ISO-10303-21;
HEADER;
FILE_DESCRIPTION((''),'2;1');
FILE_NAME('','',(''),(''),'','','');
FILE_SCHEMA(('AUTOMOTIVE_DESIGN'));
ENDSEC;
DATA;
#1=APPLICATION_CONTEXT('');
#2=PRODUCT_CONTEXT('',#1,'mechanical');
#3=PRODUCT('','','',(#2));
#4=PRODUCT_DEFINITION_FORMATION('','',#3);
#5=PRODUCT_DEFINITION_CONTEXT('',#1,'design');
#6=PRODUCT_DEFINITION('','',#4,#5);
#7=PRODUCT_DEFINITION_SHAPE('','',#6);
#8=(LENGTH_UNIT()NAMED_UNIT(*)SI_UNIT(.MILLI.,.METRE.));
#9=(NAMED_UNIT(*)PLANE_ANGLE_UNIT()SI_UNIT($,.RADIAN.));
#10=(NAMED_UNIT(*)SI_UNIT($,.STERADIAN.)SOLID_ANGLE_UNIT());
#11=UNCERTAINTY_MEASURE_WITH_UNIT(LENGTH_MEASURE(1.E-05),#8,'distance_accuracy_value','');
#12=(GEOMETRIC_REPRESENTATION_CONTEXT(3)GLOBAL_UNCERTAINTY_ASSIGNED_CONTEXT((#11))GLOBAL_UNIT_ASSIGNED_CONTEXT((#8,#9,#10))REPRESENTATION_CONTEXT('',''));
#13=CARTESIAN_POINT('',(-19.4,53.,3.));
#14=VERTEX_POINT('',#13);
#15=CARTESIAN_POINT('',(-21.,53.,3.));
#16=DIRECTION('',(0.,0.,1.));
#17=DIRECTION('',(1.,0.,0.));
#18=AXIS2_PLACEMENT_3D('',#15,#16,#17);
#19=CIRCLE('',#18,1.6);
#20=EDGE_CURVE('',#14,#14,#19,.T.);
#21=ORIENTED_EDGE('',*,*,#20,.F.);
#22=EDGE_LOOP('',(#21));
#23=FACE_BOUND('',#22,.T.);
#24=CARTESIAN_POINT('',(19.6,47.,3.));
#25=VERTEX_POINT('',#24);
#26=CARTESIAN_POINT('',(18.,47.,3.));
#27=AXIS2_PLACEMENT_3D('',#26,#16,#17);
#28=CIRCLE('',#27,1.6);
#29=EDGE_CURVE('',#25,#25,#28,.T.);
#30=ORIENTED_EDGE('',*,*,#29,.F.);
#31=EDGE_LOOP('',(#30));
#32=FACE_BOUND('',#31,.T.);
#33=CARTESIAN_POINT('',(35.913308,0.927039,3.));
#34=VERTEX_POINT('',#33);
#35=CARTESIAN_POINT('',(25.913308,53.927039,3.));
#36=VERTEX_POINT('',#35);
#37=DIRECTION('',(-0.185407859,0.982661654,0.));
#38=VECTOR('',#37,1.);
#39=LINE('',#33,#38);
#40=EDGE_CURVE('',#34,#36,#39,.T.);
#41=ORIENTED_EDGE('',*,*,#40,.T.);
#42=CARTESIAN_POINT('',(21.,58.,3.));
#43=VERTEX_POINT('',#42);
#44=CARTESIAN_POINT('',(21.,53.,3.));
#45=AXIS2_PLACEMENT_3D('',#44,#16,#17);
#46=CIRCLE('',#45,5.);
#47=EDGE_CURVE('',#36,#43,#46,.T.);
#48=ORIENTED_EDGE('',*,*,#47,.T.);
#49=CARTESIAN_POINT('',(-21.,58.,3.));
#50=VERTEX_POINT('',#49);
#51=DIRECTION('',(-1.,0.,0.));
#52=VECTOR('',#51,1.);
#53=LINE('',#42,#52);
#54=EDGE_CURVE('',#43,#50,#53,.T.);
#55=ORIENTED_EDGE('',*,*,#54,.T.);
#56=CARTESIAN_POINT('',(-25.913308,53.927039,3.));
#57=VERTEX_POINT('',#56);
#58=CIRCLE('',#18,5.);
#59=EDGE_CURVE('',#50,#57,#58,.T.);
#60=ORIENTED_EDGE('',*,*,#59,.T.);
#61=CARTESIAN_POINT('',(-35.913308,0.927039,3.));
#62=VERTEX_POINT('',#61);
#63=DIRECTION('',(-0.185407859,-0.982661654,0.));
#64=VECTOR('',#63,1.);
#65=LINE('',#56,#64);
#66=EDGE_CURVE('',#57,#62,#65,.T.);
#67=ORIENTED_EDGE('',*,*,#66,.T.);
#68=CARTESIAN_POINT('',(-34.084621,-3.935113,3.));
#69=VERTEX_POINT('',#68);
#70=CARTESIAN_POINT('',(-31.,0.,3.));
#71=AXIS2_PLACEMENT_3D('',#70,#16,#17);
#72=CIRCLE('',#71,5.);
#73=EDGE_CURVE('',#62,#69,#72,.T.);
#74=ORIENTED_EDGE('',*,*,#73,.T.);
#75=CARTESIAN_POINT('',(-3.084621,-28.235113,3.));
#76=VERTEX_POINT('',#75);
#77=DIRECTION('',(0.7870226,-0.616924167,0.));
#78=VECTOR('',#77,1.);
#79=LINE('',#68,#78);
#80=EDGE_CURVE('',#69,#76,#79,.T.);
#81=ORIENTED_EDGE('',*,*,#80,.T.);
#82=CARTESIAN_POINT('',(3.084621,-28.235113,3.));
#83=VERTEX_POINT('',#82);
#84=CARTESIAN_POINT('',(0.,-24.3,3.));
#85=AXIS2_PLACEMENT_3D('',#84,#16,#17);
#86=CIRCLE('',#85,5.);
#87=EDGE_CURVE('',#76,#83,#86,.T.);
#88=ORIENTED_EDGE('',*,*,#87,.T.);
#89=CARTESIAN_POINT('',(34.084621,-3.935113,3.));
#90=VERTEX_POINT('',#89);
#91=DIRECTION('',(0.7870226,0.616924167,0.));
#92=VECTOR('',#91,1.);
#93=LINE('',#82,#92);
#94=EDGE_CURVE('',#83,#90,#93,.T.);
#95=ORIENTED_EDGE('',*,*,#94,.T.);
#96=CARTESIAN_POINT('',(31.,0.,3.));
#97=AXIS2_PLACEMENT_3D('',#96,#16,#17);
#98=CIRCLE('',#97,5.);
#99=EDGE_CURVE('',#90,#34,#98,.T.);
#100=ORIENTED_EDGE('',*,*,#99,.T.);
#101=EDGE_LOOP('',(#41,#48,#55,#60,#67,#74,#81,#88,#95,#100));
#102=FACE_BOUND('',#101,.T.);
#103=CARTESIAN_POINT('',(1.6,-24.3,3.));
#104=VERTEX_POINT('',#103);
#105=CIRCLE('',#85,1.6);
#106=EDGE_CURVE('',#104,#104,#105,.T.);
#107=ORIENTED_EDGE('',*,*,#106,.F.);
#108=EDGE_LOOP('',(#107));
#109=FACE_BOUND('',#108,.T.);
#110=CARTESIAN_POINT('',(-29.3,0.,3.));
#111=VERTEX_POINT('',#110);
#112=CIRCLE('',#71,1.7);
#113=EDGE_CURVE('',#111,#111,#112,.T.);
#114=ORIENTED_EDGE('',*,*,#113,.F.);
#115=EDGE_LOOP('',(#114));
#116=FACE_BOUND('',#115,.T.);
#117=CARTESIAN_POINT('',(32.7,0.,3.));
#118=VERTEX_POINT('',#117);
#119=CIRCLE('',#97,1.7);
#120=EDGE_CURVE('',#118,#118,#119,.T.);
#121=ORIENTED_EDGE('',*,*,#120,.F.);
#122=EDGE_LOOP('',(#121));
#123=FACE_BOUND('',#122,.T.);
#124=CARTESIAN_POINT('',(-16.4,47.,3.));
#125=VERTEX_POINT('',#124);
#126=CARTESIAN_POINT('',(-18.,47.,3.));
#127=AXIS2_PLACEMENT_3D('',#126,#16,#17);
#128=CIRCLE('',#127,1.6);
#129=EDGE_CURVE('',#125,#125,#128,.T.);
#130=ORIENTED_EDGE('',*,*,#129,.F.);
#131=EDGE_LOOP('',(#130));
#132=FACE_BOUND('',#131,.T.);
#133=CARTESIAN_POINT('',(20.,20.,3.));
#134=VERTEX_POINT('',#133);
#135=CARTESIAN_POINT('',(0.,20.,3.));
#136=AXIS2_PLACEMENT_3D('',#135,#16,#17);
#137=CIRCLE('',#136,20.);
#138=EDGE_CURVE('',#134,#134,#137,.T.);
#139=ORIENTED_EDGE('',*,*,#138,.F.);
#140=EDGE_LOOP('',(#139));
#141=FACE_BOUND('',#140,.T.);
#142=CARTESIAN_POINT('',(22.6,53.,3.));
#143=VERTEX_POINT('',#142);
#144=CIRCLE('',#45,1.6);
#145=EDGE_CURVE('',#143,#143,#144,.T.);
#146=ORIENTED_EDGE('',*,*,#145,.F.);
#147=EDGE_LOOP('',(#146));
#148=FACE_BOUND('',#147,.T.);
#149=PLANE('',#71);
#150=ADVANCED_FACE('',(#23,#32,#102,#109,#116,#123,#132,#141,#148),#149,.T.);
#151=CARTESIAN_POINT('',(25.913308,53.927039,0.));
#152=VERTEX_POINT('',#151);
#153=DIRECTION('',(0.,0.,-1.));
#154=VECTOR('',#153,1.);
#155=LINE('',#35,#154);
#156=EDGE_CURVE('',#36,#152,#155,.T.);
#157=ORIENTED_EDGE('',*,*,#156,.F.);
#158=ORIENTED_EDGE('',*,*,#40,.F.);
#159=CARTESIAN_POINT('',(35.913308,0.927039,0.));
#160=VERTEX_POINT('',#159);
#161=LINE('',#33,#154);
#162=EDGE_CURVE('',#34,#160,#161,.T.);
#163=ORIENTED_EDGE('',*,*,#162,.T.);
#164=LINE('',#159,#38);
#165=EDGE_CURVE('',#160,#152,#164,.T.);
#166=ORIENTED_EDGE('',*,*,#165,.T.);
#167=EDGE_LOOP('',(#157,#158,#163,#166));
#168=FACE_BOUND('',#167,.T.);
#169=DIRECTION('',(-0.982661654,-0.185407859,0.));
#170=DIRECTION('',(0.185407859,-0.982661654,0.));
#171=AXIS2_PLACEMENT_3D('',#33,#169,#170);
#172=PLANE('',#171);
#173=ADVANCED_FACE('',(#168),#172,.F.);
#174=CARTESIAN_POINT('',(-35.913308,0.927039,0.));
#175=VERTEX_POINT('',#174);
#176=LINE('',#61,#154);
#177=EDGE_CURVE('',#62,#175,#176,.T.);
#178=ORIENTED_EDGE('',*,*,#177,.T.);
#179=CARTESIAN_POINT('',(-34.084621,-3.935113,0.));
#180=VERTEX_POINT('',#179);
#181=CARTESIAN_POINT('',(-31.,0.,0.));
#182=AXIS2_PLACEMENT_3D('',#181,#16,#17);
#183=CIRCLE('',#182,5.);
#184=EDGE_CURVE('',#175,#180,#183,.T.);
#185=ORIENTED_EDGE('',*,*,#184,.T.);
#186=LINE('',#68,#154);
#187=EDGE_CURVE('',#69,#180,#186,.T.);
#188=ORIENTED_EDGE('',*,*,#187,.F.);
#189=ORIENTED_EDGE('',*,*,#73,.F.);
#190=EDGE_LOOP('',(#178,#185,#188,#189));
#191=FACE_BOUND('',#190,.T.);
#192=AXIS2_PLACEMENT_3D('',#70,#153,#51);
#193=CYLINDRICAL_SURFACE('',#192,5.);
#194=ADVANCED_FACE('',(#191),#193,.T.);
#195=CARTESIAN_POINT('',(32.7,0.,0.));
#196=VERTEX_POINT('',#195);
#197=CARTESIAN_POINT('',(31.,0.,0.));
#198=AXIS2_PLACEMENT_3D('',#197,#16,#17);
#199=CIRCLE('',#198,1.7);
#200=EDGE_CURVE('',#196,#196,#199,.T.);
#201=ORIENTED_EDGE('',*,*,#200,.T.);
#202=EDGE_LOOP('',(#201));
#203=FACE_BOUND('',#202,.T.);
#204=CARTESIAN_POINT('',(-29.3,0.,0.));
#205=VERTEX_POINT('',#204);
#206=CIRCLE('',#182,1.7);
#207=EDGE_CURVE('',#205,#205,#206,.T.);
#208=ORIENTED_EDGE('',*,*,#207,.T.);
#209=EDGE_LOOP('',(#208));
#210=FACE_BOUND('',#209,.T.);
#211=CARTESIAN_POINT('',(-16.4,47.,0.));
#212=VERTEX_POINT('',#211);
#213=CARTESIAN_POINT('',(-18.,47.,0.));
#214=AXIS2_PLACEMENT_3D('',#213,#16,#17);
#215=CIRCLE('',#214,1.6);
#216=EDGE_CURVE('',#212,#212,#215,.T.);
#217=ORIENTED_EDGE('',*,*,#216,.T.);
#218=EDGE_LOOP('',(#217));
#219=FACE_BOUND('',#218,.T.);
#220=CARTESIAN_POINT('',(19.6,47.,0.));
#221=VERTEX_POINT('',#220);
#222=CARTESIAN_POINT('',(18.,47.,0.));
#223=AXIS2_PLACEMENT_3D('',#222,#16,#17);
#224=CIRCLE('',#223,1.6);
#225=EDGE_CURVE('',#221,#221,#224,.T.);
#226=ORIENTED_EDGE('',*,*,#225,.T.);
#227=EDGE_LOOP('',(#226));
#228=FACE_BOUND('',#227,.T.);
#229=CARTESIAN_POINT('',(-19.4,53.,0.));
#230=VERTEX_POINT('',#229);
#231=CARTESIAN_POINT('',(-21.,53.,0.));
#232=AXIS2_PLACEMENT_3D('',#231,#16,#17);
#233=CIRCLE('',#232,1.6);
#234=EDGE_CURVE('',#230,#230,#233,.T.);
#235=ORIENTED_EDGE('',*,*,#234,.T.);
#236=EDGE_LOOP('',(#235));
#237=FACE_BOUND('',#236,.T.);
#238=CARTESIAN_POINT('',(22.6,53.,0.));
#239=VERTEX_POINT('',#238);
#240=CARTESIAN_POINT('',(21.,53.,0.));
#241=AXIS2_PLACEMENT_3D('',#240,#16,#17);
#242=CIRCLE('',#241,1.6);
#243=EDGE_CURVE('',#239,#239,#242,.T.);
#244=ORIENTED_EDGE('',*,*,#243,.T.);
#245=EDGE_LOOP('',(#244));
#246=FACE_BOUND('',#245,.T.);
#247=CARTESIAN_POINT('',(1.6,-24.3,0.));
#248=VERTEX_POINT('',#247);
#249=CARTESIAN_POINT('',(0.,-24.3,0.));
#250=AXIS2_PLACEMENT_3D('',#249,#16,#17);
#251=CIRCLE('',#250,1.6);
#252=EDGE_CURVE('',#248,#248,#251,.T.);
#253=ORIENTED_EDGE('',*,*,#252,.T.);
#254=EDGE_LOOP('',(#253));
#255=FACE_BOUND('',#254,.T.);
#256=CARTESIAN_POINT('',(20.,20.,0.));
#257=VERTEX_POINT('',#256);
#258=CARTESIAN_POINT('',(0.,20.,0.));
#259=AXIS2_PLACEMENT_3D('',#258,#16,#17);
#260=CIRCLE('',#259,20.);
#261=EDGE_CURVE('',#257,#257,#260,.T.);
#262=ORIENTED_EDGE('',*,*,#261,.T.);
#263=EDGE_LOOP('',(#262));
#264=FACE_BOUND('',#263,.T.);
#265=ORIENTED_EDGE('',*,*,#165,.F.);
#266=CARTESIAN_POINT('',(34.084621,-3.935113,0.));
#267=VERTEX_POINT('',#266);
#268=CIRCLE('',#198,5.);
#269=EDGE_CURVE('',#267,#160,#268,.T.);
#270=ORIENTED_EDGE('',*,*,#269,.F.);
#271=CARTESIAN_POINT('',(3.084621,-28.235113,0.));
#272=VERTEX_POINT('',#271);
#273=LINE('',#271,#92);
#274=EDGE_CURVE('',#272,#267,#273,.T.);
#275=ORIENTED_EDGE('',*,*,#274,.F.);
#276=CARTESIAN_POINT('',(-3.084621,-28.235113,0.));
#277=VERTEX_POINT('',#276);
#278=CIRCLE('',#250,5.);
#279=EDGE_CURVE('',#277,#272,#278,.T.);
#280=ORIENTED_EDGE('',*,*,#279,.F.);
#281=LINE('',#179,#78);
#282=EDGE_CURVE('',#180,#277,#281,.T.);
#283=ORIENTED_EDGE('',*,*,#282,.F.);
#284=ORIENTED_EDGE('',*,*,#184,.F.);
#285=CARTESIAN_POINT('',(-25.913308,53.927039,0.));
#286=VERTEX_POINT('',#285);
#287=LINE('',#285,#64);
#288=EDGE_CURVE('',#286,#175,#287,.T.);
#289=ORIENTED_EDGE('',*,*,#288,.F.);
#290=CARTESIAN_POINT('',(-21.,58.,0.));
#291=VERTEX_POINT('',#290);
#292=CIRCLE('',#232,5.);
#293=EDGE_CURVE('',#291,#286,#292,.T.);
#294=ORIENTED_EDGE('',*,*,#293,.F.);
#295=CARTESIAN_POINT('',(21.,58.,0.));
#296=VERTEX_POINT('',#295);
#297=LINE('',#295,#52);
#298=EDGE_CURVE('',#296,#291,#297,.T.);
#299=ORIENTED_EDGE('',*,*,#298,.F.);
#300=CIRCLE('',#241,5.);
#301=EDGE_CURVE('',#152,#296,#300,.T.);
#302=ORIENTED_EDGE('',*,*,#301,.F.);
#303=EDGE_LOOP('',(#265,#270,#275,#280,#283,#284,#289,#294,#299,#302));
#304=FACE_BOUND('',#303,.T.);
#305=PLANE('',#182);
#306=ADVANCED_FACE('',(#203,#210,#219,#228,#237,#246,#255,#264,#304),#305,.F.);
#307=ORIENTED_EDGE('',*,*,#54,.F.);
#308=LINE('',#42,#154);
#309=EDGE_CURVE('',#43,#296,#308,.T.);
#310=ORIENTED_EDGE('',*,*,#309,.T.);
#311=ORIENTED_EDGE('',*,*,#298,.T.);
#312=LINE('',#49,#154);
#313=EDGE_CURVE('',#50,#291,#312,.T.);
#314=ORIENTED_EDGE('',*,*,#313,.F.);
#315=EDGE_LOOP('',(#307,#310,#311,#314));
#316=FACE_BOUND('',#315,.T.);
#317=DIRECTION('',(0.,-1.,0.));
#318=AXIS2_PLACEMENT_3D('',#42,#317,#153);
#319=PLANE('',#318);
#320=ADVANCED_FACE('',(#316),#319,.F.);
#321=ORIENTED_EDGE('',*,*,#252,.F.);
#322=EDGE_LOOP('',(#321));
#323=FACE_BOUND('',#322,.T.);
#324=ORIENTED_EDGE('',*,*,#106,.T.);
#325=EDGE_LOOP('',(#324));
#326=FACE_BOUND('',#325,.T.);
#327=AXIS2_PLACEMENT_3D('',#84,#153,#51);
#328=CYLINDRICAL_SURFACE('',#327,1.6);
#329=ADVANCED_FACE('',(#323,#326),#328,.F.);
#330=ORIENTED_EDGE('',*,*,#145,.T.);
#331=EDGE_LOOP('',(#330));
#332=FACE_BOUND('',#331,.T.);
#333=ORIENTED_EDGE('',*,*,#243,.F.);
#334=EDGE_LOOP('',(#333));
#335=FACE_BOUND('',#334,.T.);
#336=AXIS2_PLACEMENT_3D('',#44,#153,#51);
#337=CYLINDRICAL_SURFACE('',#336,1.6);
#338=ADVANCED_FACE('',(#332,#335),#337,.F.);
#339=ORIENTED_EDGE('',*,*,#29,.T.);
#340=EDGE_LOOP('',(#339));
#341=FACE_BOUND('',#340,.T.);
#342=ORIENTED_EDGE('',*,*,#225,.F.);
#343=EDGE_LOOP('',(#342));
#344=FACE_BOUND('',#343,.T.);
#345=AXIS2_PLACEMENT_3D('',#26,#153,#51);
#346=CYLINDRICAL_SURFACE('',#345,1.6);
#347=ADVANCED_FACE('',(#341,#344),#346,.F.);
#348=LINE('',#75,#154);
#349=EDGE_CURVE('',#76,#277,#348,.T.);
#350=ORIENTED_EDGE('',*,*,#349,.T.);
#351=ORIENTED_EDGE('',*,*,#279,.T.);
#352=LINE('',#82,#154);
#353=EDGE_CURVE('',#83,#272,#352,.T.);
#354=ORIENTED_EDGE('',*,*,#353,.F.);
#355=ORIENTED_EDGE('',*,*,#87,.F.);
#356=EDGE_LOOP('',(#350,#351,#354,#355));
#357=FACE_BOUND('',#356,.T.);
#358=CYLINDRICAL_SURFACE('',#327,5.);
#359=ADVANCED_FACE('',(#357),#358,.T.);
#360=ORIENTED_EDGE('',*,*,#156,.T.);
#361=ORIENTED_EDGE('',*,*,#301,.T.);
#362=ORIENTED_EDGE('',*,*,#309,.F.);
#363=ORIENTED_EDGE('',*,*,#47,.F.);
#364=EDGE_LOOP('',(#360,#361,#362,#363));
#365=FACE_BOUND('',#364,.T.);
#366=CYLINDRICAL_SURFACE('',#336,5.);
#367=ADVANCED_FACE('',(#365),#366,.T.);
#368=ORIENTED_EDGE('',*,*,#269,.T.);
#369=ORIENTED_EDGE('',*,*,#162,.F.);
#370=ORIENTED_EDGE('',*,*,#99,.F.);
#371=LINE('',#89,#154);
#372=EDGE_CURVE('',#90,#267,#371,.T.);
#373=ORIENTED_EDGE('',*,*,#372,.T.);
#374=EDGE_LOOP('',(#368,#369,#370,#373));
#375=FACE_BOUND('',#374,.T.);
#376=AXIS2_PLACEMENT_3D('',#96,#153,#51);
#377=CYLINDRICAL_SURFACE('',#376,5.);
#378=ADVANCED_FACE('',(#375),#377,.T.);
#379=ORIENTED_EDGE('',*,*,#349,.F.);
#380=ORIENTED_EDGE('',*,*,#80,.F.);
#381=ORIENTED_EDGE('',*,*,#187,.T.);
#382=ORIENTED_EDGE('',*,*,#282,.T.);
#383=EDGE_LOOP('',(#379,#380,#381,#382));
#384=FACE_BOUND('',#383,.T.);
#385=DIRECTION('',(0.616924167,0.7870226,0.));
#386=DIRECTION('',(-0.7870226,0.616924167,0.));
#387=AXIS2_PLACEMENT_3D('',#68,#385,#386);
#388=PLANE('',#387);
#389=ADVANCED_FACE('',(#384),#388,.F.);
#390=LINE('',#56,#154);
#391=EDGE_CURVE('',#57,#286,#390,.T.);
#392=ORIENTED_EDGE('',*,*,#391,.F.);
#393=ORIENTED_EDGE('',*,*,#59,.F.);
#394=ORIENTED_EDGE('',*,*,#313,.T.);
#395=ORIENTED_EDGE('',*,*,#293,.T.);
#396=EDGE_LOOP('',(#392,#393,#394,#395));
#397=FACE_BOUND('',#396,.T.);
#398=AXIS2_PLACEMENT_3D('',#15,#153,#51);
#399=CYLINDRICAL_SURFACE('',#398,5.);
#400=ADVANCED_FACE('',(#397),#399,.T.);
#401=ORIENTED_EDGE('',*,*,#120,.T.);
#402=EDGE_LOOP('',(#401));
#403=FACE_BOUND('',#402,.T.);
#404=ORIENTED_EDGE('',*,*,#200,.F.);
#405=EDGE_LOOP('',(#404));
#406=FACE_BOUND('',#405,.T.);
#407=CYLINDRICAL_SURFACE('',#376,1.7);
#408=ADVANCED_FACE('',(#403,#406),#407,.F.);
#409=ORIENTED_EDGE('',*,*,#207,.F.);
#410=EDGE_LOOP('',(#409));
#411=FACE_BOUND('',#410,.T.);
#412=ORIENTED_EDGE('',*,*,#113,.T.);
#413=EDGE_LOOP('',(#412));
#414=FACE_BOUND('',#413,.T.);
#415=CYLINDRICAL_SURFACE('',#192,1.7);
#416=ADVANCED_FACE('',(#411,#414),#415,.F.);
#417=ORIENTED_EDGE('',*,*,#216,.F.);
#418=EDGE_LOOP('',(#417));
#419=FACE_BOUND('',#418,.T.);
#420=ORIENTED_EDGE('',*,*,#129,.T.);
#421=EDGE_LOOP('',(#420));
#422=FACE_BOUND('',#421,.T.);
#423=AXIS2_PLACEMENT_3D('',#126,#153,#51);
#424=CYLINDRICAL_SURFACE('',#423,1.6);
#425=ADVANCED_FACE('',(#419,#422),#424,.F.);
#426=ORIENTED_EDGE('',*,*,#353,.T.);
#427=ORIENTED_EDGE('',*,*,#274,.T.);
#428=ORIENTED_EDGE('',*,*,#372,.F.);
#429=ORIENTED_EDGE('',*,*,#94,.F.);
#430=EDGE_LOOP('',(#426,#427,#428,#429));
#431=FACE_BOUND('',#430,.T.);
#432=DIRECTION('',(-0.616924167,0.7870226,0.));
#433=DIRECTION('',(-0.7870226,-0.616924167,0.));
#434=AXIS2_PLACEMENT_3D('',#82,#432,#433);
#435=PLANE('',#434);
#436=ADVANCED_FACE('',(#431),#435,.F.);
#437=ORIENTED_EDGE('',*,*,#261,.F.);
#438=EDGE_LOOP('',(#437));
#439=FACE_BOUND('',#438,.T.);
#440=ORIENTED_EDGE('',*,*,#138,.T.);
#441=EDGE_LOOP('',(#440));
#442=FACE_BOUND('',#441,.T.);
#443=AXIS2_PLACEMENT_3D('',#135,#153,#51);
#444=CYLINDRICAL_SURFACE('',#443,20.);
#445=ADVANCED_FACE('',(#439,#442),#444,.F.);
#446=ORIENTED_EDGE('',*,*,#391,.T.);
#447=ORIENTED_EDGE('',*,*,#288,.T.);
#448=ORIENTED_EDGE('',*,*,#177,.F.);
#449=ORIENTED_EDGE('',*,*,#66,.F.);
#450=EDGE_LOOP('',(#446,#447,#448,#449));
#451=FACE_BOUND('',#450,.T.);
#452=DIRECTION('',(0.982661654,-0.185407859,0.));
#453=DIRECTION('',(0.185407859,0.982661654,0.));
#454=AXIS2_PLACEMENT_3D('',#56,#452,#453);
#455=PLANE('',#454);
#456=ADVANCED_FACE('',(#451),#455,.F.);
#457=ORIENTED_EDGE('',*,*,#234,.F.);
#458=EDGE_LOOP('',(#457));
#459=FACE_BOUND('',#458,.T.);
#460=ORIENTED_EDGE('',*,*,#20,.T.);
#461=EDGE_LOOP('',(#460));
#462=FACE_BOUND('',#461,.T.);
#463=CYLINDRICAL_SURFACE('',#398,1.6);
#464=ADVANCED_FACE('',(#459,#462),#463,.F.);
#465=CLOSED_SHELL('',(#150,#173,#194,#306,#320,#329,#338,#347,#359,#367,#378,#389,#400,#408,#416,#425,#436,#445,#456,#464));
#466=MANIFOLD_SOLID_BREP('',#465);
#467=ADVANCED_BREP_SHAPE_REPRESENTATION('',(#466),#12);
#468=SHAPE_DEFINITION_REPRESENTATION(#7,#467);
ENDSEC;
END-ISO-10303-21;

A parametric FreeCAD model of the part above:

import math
import FreeCAD as App
import Part
import Sketcher

V = App.Vector

doc = App.newDocument("Part")
body = doc.addObject("PartDesign::Body", "Body")

sketch1 = doc.addObject("Sketcher::SketchObject", "Sketch")
body.addObject(sketch1)
sketch1.AttachmentSupport = (doc.XY_Plane, [""])
sketch1.MapMode = "FlatFace"
sketch1.addGeometry([
    Part.LineSegment(V(21, 58, 0), V(-21, 58, 0)),
    Part.ArcOfCircle(Part.Circle(V(-21, 53, 0), V(0, 0, 1), 5), math.radians(90), math.radians(169.315088)),
    Part.LineSegment(V(-25.913308, 53.927039, 0), V(-35.913308, 0.927039, 0)),
    Part.ArcOfCircle(Part.Circle(V(-31, 0, 0), V(0, 0, 1), 5), math.radians(169.315088), math.radians(231.908133)),
    Part.LineSegment(V(-34.084621, -3.935113, 0), V(-3.084621, -28.235113, 0)),
    Part.ArcOfCircle(Part.Circle(V(0, -24.3, 0), V(0, 0, 1), 5), math.radians(-128.091867), math.radians(-51.908133)),
    Part.LineSegment(V(3.084621, -28.235113, 0), V(34.084621, -3.935113, 0)),
    Part.ArcOfCircle(Part.Circle(V(31, 0, 0), V(0, 0, 1), 5), math.radians(-51.908133), math.radians(10.684912)),
    Part.LineSegment(V(35.913308, 0.927039, 0), V(25.913308, 53.927039, 0)),
    Part.ArcOfCircle(Part.Circle(V(21, 53, 0), V(0, 0, 1), 5), math.radians(10.684912), math.radians(90)),
    Part.Circle(V(-31, 0, 0), V(0, 0, 1), 1.7),
    Part.Circle(V(0, -24.3, 0), V(0, 0, 1), 1.6),
    Part.Circle(V(31, 0, 0), V(0, 0, 1), 1.7),
    Part.Circle(V(-18, 47, 0), V(0, 0, 1), 1.6),
    Part.Circle(V(-21, 53, 0), V(0, 0, 1), 1.6),
    Part.Circle(V(0, 20, 0), V(0, 0, 1), 20),
    Part.Circle(V(18, 47, 0), V(0, 0, 1), 1.6),
    Part.Circle(V(21, 53, 0), V(0, 0, 1), 1.6),
], False)
sketch1.addConstraint([
    Sketcher.Constraint("Tangent", 0, 2, 1, 1),
    Sketcher.Constraint("Tangent", 1, 2, 2, 1),
    Sketcher.Constraint("Tangent", 2, 2, 3, 1),
    Sketcher.Constraint("Tangent", 3, 2, 4, 1),
    Sketcher.Constraint("Tangent", 4, 2, 5, 1),
    Sketcher.Constraint("Tangent", 5, 2, 6, 1),
    Sketcher.Constraint("Tangent", 6, 2, 7, 1),
    Sketcher.Constraint("Tangent", 7, 2, 8, 1),
    Sketcher.Constraint("Tangent", 8, 2, 9, 1),
    Sketcher.Constraint("Tangent", 9, 2, 0, 1),
    Sketcher.Constraint("Horizontal", 0),
    Sketcher.Constraint("Coincident", 10, 3, 3, 3),
    Sketcher.Constraint("Coincident", 11, 3, 5, 3),
    Sketcher.Constraint("Coincident", 12, 3, 7, 3),
    Sketcher.Constraint("Coincident", 14, 3, 1, 3),
    Sketcher.Constraint("Coincident", 17, 3, 9, 3),
    Sketcher.Constraint("Equal", 1, 3),
    Sketcher.Constraint("Equal", 3, 5),
    Sketcher.Constraint("Equal", 5, 7),
    Sketcher.Constraint("Equal", 7, 9),
    Sketcher.Constraint("Equal", 10, 12),
    Sketcher.Constraint("Equal", 11, 13),
    Sketcher.Constraint("Equal", 13, 14),
    Sketcher.Constraint("Equal", 14, 16),
    Sketcher.Constraint("Equal", 16, 17),
    Sketcher.Constraint("Symmetric", 3, 3, 7, 3, -1, 1),
    Sketcher.Constraint("Symmetric", 13, 3, 16, 3, -2),
    Sketcher.Constraint("Symmetric", 4, 2, 5, 2, -2),
    Sketcher.Constraint("PointOnObject", 15, 3, -2),
    Sketcher.Constraint("Horizontal", 2, 2, 7, 2),
    Sketcher.Constraint("Diameter", 15, 40.0),
    Sketcher.Constraint("Radius", 1, 5.0),
    Sketcher.Constraint("Diameter", 10, 3.4),
    Sketcher.Constraint("Diameter", 11, 3.2),
    Sketcher.Constraint("DistanceX", 0, 2, 0, 1, 42.0),
    Sketcher.Constraint("DistanceY", -1, 1, 1, 3, 53.0),
    Sketcher.Constraint("DistanceX", 3, 3, -1, 1, 31.0),
    Sketcher.Constraint("DistanceX", 13, 3, -1, 1, 18.0),
    Sketcher.Constraint("DistanceY", -1, 1, 13, 3, 47.0),
    Sketcher.Constraint("DistanceY", -1, 1, 15, 3, 20.0),
    Sketcher.Constraint("DistanceY", 5, 3, -1, 1, 24.3),
])
pad1 = doc.addObject("PartDesign::Pad", "Pad")
body.addObject(pad1)
pad1.Profile = sketch1
pad1.Length = 3

doc.recompute()
